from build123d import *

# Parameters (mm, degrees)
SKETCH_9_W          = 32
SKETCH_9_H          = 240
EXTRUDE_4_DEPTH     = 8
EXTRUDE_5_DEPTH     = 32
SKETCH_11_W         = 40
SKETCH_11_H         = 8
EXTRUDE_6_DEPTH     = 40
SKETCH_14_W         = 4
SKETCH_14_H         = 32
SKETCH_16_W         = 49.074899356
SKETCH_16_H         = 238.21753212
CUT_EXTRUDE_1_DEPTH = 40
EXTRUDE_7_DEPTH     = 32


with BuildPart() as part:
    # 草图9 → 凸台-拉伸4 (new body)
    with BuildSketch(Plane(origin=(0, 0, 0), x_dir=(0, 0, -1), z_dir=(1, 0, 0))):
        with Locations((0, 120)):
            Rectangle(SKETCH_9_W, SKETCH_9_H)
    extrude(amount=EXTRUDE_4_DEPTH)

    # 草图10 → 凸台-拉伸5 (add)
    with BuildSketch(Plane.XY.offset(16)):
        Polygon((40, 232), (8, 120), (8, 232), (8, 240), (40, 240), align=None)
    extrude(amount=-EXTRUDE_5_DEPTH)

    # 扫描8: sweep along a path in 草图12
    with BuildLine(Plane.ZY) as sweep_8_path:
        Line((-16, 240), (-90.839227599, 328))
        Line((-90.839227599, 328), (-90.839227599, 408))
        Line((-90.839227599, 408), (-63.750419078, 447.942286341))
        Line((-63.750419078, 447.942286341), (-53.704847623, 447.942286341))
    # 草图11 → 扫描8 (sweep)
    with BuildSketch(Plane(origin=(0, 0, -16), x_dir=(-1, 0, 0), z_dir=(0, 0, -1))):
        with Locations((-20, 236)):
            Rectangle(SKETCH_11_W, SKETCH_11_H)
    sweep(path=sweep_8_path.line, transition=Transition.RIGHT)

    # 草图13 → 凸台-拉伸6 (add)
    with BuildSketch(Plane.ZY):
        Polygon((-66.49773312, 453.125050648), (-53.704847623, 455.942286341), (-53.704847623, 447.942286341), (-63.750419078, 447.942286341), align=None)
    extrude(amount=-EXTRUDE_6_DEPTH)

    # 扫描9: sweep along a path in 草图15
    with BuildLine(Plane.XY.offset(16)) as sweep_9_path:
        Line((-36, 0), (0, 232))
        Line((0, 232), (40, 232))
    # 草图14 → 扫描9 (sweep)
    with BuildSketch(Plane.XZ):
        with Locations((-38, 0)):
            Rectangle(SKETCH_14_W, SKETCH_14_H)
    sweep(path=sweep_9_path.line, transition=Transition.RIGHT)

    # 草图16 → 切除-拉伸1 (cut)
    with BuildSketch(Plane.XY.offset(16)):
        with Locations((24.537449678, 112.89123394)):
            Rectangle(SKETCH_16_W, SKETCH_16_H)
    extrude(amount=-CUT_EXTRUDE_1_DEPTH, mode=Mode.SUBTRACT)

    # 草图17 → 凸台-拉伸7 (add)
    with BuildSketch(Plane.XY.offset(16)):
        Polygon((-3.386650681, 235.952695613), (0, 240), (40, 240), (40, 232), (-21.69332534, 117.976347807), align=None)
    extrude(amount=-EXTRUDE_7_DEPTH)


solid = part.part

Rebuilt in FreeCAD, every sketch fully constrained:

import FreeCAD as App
import Part
import Sketcher
from FreeCAD import Vector

doc = App.newDocument("Part")
body = doc.addObject("PartDesign::Body", "Body")

sketch1 = body.newObject("Sketcher::SketchObject", "Sketch")
sketch1.AttachmentSupport = (doc.getObject("YZ_Plane"), [""])
sketch1.MapMode = "FlatFace"
sketch1.addGeometry([
    Part.LineSegment(Vector(240, 16, 0), Vector(0, 16, 0)),
    Part.LineSegment(Vector(0, 16, 0), Vector(0, -16, 0)),
    Part.LineSegment(Vector(0, -16, 0), Vector(240, -16, 0)),
    Part.LineSegment(Vector(240, -16, 0), Vector(240, 16, 0)),
], False)
sketch1.addConstraint([
    Sketcher.Constraint("Coincident", 0, 2, 1, 1),
    Sketcher.Constraint("Coincident", 1, 2, 2, 1),
    Sketcher.Constraint("Coincident", 2, 2, 3, 1),
    Sketcher.Constraint("Coincident", 3, 2, 0, 1),
    Sketcher.Constraint("Horizontal", 0),
    Sketcher.Constraint("Vertical", 1),
    Sketcher.Constraint("Horizontal", 2),
    Sketcher.Constraint("Vertical", 3),
    Sketcher.Constraint("Symmetric", 0, 2, 1, 2, -1, 1),
    Sketcher.Constraint("DistanceX", 0, 2, 0, 1, 240.0),
    Sketcher.Constraint("DistanceY", 1, 2, 1, 1, 32.0),
])
pad1 = body.newObject("PartDesign::Pad", "Pad")
pad1.Profile = sketch1
pad1.Length = 8

sketch2 = body.newObject("Sketcher::SketchObject", "Sketch001")
sketch2.AttachmentSupport = (doc.getObject("XY_Plane"), [""])
sketch2.MapMode = "FlatFace"
sketch2.AttachmentOffset = App.Placement(Vector(0, 0, 16), App.Rotation())
sketch2.addGeometry([
    Part.LineSegment(Vector(8, 120, 0), Vector(40, 232, 0)),
    Part.LineSegment(Vector(40, 232, 0), Vector(40, 240, 0)),
    Part.LineSegment(Vector(40, 240, 0), Vector(8, 240, 0)),
    Part.LineSegment(Vector(8, 240, 0), Vector(8, 120, 0)),
], False)
sketch2.addConstraint([
    Sketcher.Constraint("Coincident", 0, 2, 1, 1),
    Sketcher.Constraint("Coincident", 1, 2, 2, 1),
    Sketcher.Constraint("Coincident", 2, 2, 3, 1),
    Sketcher.Constraint("Coincident", 3, 2, 0, 1),
    Sketcher.Constraint("Vertical", 1),
    Sketcher.Constraint("Horizontal", 2),
    Sketcher.Constraint("Vertical", 3),
    Sketcher.Constraint("DistanceX", 2, 2, 2, 1, 32.0),
    Sketcher.Constraint("DistanceY", 1, 1, 1, 2, 8.0),
    Sketcher.Constraint("DistanceY", 3, 2, 3, 1, 120.0),
    Sketcher.Constraint("DistanceX", -1, 1, 0, 2, 40.0),
    Sketcher.Constraint("DistanceY", -1, 1, 0, 2, 232.0),
])
pad2 = body.newObject("PartDesign::Pad", "Pad001")
pad2.Profile = sketch2
pad2.Length = 32
pad2.Reversed = True

sketch3 = body.newObject("Sketcher::SketchObject", "Sketch002")
sketch3.AttachmentSupport = (doc.getObject("XY_Plane"), [""])
sketch3.MapMode = "FlatFace"
sketch3.AttachmentOffset = App.Placement(Vector(0, 0, -16), App.Rotation())
sketch3.addGeometry([
    Part.LineSegment(Vector(40, 240, 0), Vector(40, 232, 0)),
    Part.LineSegment(Vector(40, 232, 0), Vector(0, 232, 0)),
    Part.LineSegment(Vector(0, 232, 0), Vector(0, 240, 0)),
    Part.LineSegment(Vector(0, 240, 0), Vector(40, 240, 0)),
], False)
sketch3.addConstraint([
    Sketcher.Constraint("Coincident", 0, 2, 1, 1),
    Sketcher.Constraint("Coincident", 1, 2, 2, 1),
    Sketcher.Constraint("Coincident", 2, 2, 3, 1),
    Sketcher.Constraint("Coincident", 3, 2, 0, 1),
    Sketcher.Constraint("Vertical", 0),
    Sketcher.Constraint("Horizontal", 1),
    Sketcher.Constraint("Vertical", 2),
    Sketcher.Constraint("Horizontal", 3),
    Sketcher.Constraint("PointOnObject", 1, 2, -2),
    Sketcher.Constraint("DistanceX", 1, 2, 1, 1, 40.0),
    Sketcher.Constraint("DistanceY", 0, 2, 0, 1, 8.0),
    Sketcher.Constraint("DistanceY", -1, 1, 0, 2, 232.0),
])

sketch4 = body.newObject("Sketcher::SketchObject", "Sketch003")
sketch4.AttachmentSupport = (doc.getObject("YZ_Plane"), [""])
sketch4.MapMode = "FlatFace"
sketch4.addGeometry([
    Part.LineSegment(Vector(240, -16, 0), Vector(328, -91, 0)),
    Part.LineSegment(Vector(328, -91, 0), Vector(408, -91, 0)),
    Part.LineSegment(Vector(408, -91, 0), Vector(448, -64, 0)),
    Part.LineSegment(Vector(448, -64, 0), Vector(448, -54, 0)),
], False)
sketch4.addConstraint([
    Sketcher.Constraint("Coincident", 0, 2, 1, 1),
    Sketcher.Constraint("Coincident", 1, 2, 2, 1),
    Sketcher.Constraint("Coincident", 2, 2, 3, 1),
    Sketcher.Constraint("Horizontal", 1),
    Sketcher.Constraint("Vertical", 3),
    Sketcher.Constraint("DistanceX", 1, 1, 1, 2, 80.0),
    Sketcher.Constraint("DistanceX", -1, 1, 0, 1, 240.0),
    Sketcher.Constraint("DistanceY", 0, 1, -1, 1, 16.0),
    Sketcher.Constraint("DistanceX", -1, 1, 0, 2, 328.0),
    Sketcher.Constraint("DistanceY", 3, 1, 3, 2, 10.045571),
    Sketcher.Constraint("Distance", 0, 115.520171),
    Sketcher.Constraint("Distance", 2, 48.26168),
    Sketcher.Constraint("DistanceY", 2, 2, -1, 1, 63.750419),
])
doc.recompute()

additivepipe = body.newObject("PartDesign::AdditivePipe", "AdditivePipe")
additivepipe.Profile = sketch3
additivepipe.Spine = (sketch4, ["Edge1", "Edge2", "Edge3", "Edge4"])
additivepipe.Transition = "Right corner"

sketch5 = body.newObject("Sketcher::SketchObject", "Sketch004")
sketch5.AttachmentSupport = (doc.getObject("YZ_Plane"), [""])
sketch5.MapMode = "FlatFace"
sketch5.addGeometry([
    Part.LineSegment(Vector(456, -54, 0), Vector(453, -66, 0)),
    Part.LineSegment(Vector(453, -66, 0), Vector(448, -64, 0)),
    Part.LineSegment(Vector(448, -64, 0), Vector(448, -54, 0)),
    Part.LineSegment(Vector(448, -54, 0), Vector(456, -54, 0)),
], False)
sketch5.addConstraint([
    Sketcher.Constraint("Coincident", 0, 2, 1, 1),
    Sketcher.Constraint("Coincident", 1, 2, 2, 1),
    Sketcher.Constraint("Coincident", 2, 2, 3, 1),
    Sketcher.Constraint("Coincident", 3, 2, 0, 1),
    Sketcher.Constraint("Vertical", 2),
    Sketcher.Constraint("Horizontal", 3),
    Sketcher.Constraint("DistanceX", 3, 1, 3, 2, 8.0),
    Sketcher.Constraint("Distance", 1, 5.8659),
    Sketcher.Constraint("DistanceY", 2, 1, 2, 2, 10.045571),
    Sketcher.Constraint("DistanceX", -1, 1, 0, 2, 453.125051),
    Sketcher.Constraint("DistanceY", 1, 2, -1, 1, 63.750419),
    Sketcher.Constraint("Distance", 0, 13.099417),
])
pad3 = body.newObject("PartDesign::Pad", "Pad002")
pad3.Profile = sketch5
pad3.Length = 40

sketch6 = body.newObject("Sketcher::SketchObject", "Sketch005")
sketch6.AttachmentSupport = (doc.getObject("XZ_Plane"), [""])
sketch6.MapMode = "FlatFace"
sketch6.addGeometry([
    Part.LineSegment(Vector(-40, 16, 0), Vector(-40, -16, 0)),
    Part.LineSegment(Vector(-40, -16, 0), Vector(-36, -16, 0)),
    Part.LineSegment(Vector(-36, -16, 0), Vector(-36, 16, 0)),
    Part.LineSegment(Vector(-36, 16, 0), Vector(-40, 16, 0)),
], False)
sketch6.addConstraint([
    Sketcher.Constraint("Coincident", 0, 2, 1, 1),
    Sketcher.Constraint("Coincident", 1, 2, 2, 1),
    Sketcher.Constraint("Coincident", 2, 2, 3, 1),
    Sketcher.Constraint("Coincident", 3, 2, 0, 1),
    Sketcher.Constraint("Vertical", 0),
    Sketcher.Constraint("Horizontal", 1),
    Sketcher.Constraint("Vertical", 2),
    Sketcher.Constraint("Horizontal", 3),
    Sketcher.Constraint("DistanceX", 1, 1, 1, 2, 4.0),
    Sketcher.Constraint("DistanceY", 0, 2, 0, 1, 32.0),
    Sketcher.Constraint("DistanceX", 0, 2, -1, 1, 40.0),
    Sketcher.Constraint("DistanceY", 0, 2, -1, 1, 16.0),
])

sketch7 = body.newObject("Sketcher::SketchObject", "Sketch006")
sketch7.AttachmentSupport = (doc.getObject("XY_Plane"), [""])
sketch7.MapMode = "FlatFace"
sketch7.AttachmentOffset = App.Placement(Vector(0, 0, 16), App.Rotation())
sketch7.addGeometry([
    Part.LineSegment(Vector(-36, 0, 0), Vector(0, 232, 0)),
    Part.LineSegment(Vector(0, 232, 0), Vector(40, 232, 0)),
], False)
sketch7.addConstraint([
    Sketcher.Constraint("Coincident", 0, 2, 1, 1),
    Sketcher.Constraint("Horizontal", 1),
    Sketcher.Constraint("PointOnObject", 0, 1, -1),
    Sketcher.Constraint("PointOnObject", 0, 2, -2),
    Sketcher.Constraint("DistanceX", 1, 1, 1, 2, 40.0),
    Sketcher.Constraint("DistanceX", 0, 1, -1, 1, 36.0),
    Sketcher.Constraint("DistanceY", -1, 1, 0, 2, 232.0),
])
doc.recompute()

additivepipe2 = body.newObject("PartDesign::AdditivePipe", "AdditivePipe001")
additivepipe2.Profile = sketch6
additivepipe2.Spine = (sketch7, ["Edge1", "Edge2"])
additivepipe2.Transition = "Right corner"

sketch8 = body.newObject("Sketcher::SketchObject", "Sketch007")
sketch8.AttachmentSupport = (doc.getObject("XY_Plane"), [""])
sketch8.MapMode = "FlatFace"
sketch8.AttachmentOffset = App.Placement(Vector(0, 0, 16), App.Rotation())
sketch8.addGeometry([
    Part.LineSegment(Vector(0, 232, 0), Vector(0, -6, 0)),
    Part.LineSegment(Vector(0, -6, 0), Vector(49, -6, 0)),
    Part.LineSegment(Vector(49, -6, 0), Vector(49, 232, 0)),
    Part.LineSegment(Vector(49, 232, 0), Vector(0, 232, 0)),
], False)
sketch8.addConstraint([
    Sketcher.Constraint("Coincident", 0, 2, 1, 1),
    Sketcher.Constraint("Coincident", 1, 2, 2, 1),
    Sketcher.Constraint("Coincident", 2, 2, 3, 1),
    Sketcher.Constraint("Coincident", 3, 2, 0, 1),
    Sketcher.Constraint("Vertical", 0),
    Sketcher.Constraint("Horizontal", 1),
    Sketcher.Constraint("Vertical", 2),
    Sketcher.Constraint("Horizontal", 3),
    Sketcher.Constraint("PointOnObject", 0, 2, -2),
    Sketcher.Constraint("DistanceY", -1, 1, 2, 2, 232.0),
    Sketcher.Constraint("DistanceX", 1, 1, 1, 2, 49.074899),
    Sketcher.Constraint("DistanceY", 0, 2, 0, 1, 238.217532),
])
pocket1 = body.newObject("PartDesign::Pocket", "Pocket")
pocket1.Profile = sketch8
pocket1.Length = 40

sketch9 = body.newObject("Sketcher::SketchObject", "Sketch008")
sketch9.AttachmentSupport = (doc.getObject("XY_Plane"), [""])
sketch9.MapMode = "FlatFace"
sketch9.AttachmentOffset = App.Placement(Vector(0, 0, 16), App.Rotation())
sketch9.addGeometry([
    Part.LineSegment(Vector(0, 240, 0), Vector(-3, 236, 0)),
    Part.LineSegment(Vector(-3, 236, 0), Vector(-22, 118, 0)),
    Part.LineSegment(Vector(-22, 118, 0), Vector(40, 232, 0)),
    Part.LineSegment(Vector(40, 232, 0), Vector(40, 240, 0)),
    Part.LineSegment(Vector(40, 240, 0), Vector(0, 240, 0)),
], False)
sketch9.addConstraint([
    Sketcher.Constraint("Coincident", 0, 2, 1, 1),
    Sketcher.Constraint("Coincident", 1, 2, 2, 1),
    Sketcher.Constraint("Coincident", 2, 2, 3, 1),
    Sketcher.Constraint("Coincident", 3, 2, 4, 1),
    Sketcher.Constraint("Coincident", 4, 2, 0, 1),
    Sketcher.Constraint("Vertical", 3),
    Sketcher.Constraint("Horizontal", 4),
    Sketcher.Constraint("PointOnObject", 4, 2, -2),
    Sketcher.Constraint("DistanceX", 4, 2, 4, 1, 40.0),
    Sketcher.Constraint("DistanceY", 3, 1, 3, 2, 8.0),
    Sketcher.Constraint("DistanceY", -1, 1, 2, 2, 232.0),
    Sketcher.Constraint("DistanceX", 0, 2, -1, 1, 3.386651),
    Sketcher.Constraint("Distance", 0, 5.277317),
    Sketcher.Constraint("Distance", 1, 119.388245),
    Sketcher.Constraint("Distance", 2, 129.643587),
])
pad4 = body.newObject("PartDesign::Pad", "Pad003")
pad4.Profile = sketch9
pad4.Length = 32
pad4.Reversed = True

doc.recompute()
